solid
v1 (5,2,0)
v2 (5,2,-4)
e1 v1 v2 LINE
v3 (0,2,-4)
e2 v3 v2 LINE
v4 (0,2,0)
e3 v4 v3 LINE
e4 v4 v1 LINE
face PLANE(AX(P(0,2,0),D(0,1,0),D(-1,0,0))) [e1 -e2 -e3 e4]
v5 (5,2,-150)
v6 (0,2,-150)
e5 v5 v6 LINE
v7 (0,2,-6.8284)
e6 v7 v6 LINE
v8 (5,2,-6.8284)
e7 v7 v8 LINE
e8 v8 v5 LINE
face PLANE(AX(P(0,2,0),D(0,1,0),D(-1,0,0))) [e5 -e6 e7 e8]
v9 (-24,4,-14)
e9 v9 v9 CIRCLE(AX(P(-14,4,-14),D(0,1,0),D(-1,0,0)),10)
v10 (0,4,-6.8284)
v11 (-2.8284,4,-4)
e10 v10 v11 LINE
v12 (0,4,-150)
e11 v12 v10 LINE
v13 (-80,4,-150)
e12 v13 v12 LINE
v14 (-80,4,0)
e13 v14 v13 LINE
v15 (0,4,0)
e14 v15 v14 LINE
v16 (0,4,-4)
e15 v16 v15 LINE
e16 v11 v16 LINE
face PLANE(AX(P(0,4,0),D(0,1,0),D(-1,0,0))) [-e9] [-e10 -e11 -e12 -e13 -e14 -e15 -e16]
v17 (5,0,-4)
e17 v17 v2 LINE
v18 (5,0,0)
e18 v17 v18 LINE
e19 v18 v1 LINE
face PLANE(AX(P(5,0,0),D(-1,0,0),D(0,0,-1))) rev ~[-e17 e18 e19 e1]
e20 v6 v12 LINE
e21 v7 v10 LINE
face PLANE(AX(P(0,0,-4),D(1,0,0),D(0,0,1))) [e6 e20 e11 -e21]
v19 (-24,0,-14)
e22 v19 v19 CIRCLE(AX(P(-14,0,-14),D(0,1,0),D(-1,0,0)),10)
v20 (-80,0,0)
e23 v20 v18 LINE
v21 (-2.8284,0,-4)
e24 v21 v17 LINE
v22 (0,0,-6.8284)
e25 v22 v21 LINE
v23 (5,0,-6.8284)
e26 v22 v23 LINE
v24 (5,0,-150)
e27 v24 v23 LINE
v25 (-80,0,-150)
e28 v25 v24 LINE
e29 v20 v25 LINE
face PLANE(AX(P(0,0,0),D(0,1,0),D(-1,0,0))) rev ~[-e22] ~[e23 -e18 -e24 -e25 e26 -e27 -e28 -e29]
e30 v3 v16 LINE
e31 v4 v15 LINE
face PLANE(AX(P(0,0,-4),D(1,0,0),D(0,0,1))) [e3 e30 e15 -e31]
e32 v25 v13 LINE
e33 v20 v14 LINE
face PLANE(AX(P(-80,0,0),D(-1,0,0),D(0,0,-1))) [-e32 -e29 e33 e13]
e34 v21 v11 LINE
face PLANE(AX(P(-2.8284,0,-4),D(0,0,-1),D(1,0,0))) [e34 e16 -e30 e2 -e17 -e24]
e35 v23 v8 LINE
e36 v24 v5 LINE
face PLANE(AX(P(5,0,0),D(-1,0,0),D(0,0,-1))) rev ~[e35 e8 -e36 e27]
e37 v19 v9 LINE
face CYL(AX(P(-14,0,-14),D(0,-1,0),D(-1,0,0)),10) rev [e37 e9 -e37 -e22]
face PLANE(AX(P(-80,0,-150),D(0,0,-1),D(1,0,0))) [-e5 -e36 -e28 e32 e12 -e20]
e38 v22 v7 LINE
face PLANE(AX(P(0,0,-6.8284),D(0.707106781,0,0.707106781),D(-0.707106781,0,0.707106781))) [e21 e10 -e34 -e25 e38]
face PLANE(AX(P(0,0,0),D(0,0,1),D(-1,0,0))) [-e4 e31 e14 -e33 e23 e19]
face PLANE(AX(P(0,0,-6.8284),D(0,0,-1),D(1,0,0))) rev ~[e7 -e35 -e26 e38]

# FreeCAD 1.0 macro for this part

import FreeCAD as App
import Part
import Sketcher
Q = App.Units.Quantity


def add_polygon(sketch, points):
    """Adds a closed chain of lines whose ends are joined by coincident constraints."""
    first, n = sketch.GeometryCount, len(points)
    for a, b in zip(points, points[1:] + points[:1]):
        sketch.addGeometry(Part.LineSegment(App.Vector(*a, 0), App.Vector(*b, 0)), False)
    for i in range(n):
        sketch.addConstraint(Sketcher.Constraint("Coincident", first + i, 2, first + (i + 1) % n, 1))

doc = App.newDocument("Part")
body = doc.addObject("PartDesign::Body", "Body")

sketch1 = doc.addObject("Sketcher::SketchObject", "Sketch")
body.addObject(sketch1)
sketch1.AttachmentSupport = (doc.XZ_Plane, [""])
sketch1.MapMode = "FlatFace"
add_polygon(sketch1, [(-80, 0), (0, 0), (0, -150), (-80, -150)])
sketch1.addGeometry(Part.Circle(App.Vector(-14, -14, 0), App.Vector(0, 0, 1), 10), False)
sketch1.addConstraint([
    Sketcher.Constraint("Horizontal", 0),
    Sketcher.Constraint("Vertical", 1),
    Sketcher.Constraint("Horizontal", 2),
    Sketcher.Constraint("Vertical", 3),
    Sketcher.Constraint("Coincident", 0, 2, -1, 1),
    Sketcher.Constraint("Diameter", 4, Q("20 mm")),
    Sketcher.Constraint("DistanceX", 0, 1, 0, 2, Q("80 mm")),
    Sketcher.Constraint("DistanceY", 1, 2, 1, 1, Q("150 mm")),
    Sketcher.Constraint("DistanceX", 4, 3, -1, 1, Q("14 mm")),
    Sketcher.Constraint("DistanceY", 4, 3, -1, 1, Q("14 mm")),
])
pad1 = doc.addObject("PartDesign::Pad", "Pad")
body.addObject(pad1)
pad1.Profile = sketch1
pad1.Length = 4
pad1.Reversed = True

sketch2 = doc.addObject("Sketcher::SketchObject", "Sketch001")
body.addObject(sketch2)
sketch2.AttachmentSupport = (doc.XZ_Plane, [""])
sketch2.MapMode = "FlatFace"
add_polygon(sketch2, [(-2.8, -4), (0, -4), (0, -6.8)])
sketch2.addConstraint([
    Sketcher.Constraint("Horizontal", 0),
    Sketcher.Constraint("Vertical", 1),
    Sketcher.Constraint("PointOnObject", 0, 2, -2),
    Sketcher.Constraint("Equal", 0, 1),
    Sketcher.Constraint("Distance", 2, Q("4 mm")),
    Sketcher.Constraint("DistanceY", 0, 2, -1, 1, Q("4 mm")),
])
pocket1 = doc.addObject("PartDesign::Pocket", "Pocket")
body.addObject(pocket1)
pocket1.Profile = sketch2
pocket1.Length = 4

sketch3 = doc.addObject("Sketcher::SketchObject", "Sketch002")
body.addObject(sketch3)
sketch3.AttachmentSupport = (doc.XZ_Plane, [""])
sketch3.MapMode = "FlatFace"
add_polygon(sketch3, [(0, 0), (5, 0), (5, -150), (0, -150)])
sketch3.addConstraint([
    Sketcher.Constraint("Horizontal", 0),
    Sketcher.Constraint("Vertical", 1),
    Sketcher.Constraint("Horizontal", 2),
    Sketcher.Constraint("Vertical", 3),
    Sketcher.Constraint("Coincident", 3, 2, -1, 1),
    Sketcher.Constraint("DistanceX", 0, 1, 0, 2, Q("5 mm")),
    Sketcher.Constraint("DistanceY", 1, 2, 1, 1, Q("150 mm")),
])
pad2 = doc.addObject("PartDesign::Pad", "Pad001")
body.addObject(pad2)
pad2.Profile = sketch3
pad2.Length = 2
pad2.Reversed = True

sketch4 = doc.addObject("Sketcher::SketchObject", "Sketch003")
body.addObject(sketch4)
sketch4.AttachmentSupport = (doc.XZ_Plane, [""])
sketch4.MapMode = "FlatFace"
add_polygon(sketch4, [(0, -6.8), (0, -4), (5, -4), (5, -6.8)])
sketch4.addConstraint([
    Sketcher.Constraint("Vertical", 0),
    Sketcher.Constraint("Horizontal", 1),
    Sketcher.Constraint("Vertical", 2),
    Sketcher.Constraint("Horizontal", 3),
    Sketcher.Constraint("PointOnObject", 0, 2, -2),
    Sketcher.Constraint("DistanceX", 1, 1, 1, 2, Q("5 mm")),
    Sketcher.Constraint("DistanceY", 0, 2, -1, 1, Q("4 mm")),
    Sketcher.Constraint("DistanceY", 0, 1, 0, 2, Q("2.8284 mm")),
])
pocket2 = doc.addObject("PartDesign::Pocket", "Pocket001")
body.addObject(pocket2)
pocket2.Profile = sketch4
pocket2.Length = 2

doc.recompute()
